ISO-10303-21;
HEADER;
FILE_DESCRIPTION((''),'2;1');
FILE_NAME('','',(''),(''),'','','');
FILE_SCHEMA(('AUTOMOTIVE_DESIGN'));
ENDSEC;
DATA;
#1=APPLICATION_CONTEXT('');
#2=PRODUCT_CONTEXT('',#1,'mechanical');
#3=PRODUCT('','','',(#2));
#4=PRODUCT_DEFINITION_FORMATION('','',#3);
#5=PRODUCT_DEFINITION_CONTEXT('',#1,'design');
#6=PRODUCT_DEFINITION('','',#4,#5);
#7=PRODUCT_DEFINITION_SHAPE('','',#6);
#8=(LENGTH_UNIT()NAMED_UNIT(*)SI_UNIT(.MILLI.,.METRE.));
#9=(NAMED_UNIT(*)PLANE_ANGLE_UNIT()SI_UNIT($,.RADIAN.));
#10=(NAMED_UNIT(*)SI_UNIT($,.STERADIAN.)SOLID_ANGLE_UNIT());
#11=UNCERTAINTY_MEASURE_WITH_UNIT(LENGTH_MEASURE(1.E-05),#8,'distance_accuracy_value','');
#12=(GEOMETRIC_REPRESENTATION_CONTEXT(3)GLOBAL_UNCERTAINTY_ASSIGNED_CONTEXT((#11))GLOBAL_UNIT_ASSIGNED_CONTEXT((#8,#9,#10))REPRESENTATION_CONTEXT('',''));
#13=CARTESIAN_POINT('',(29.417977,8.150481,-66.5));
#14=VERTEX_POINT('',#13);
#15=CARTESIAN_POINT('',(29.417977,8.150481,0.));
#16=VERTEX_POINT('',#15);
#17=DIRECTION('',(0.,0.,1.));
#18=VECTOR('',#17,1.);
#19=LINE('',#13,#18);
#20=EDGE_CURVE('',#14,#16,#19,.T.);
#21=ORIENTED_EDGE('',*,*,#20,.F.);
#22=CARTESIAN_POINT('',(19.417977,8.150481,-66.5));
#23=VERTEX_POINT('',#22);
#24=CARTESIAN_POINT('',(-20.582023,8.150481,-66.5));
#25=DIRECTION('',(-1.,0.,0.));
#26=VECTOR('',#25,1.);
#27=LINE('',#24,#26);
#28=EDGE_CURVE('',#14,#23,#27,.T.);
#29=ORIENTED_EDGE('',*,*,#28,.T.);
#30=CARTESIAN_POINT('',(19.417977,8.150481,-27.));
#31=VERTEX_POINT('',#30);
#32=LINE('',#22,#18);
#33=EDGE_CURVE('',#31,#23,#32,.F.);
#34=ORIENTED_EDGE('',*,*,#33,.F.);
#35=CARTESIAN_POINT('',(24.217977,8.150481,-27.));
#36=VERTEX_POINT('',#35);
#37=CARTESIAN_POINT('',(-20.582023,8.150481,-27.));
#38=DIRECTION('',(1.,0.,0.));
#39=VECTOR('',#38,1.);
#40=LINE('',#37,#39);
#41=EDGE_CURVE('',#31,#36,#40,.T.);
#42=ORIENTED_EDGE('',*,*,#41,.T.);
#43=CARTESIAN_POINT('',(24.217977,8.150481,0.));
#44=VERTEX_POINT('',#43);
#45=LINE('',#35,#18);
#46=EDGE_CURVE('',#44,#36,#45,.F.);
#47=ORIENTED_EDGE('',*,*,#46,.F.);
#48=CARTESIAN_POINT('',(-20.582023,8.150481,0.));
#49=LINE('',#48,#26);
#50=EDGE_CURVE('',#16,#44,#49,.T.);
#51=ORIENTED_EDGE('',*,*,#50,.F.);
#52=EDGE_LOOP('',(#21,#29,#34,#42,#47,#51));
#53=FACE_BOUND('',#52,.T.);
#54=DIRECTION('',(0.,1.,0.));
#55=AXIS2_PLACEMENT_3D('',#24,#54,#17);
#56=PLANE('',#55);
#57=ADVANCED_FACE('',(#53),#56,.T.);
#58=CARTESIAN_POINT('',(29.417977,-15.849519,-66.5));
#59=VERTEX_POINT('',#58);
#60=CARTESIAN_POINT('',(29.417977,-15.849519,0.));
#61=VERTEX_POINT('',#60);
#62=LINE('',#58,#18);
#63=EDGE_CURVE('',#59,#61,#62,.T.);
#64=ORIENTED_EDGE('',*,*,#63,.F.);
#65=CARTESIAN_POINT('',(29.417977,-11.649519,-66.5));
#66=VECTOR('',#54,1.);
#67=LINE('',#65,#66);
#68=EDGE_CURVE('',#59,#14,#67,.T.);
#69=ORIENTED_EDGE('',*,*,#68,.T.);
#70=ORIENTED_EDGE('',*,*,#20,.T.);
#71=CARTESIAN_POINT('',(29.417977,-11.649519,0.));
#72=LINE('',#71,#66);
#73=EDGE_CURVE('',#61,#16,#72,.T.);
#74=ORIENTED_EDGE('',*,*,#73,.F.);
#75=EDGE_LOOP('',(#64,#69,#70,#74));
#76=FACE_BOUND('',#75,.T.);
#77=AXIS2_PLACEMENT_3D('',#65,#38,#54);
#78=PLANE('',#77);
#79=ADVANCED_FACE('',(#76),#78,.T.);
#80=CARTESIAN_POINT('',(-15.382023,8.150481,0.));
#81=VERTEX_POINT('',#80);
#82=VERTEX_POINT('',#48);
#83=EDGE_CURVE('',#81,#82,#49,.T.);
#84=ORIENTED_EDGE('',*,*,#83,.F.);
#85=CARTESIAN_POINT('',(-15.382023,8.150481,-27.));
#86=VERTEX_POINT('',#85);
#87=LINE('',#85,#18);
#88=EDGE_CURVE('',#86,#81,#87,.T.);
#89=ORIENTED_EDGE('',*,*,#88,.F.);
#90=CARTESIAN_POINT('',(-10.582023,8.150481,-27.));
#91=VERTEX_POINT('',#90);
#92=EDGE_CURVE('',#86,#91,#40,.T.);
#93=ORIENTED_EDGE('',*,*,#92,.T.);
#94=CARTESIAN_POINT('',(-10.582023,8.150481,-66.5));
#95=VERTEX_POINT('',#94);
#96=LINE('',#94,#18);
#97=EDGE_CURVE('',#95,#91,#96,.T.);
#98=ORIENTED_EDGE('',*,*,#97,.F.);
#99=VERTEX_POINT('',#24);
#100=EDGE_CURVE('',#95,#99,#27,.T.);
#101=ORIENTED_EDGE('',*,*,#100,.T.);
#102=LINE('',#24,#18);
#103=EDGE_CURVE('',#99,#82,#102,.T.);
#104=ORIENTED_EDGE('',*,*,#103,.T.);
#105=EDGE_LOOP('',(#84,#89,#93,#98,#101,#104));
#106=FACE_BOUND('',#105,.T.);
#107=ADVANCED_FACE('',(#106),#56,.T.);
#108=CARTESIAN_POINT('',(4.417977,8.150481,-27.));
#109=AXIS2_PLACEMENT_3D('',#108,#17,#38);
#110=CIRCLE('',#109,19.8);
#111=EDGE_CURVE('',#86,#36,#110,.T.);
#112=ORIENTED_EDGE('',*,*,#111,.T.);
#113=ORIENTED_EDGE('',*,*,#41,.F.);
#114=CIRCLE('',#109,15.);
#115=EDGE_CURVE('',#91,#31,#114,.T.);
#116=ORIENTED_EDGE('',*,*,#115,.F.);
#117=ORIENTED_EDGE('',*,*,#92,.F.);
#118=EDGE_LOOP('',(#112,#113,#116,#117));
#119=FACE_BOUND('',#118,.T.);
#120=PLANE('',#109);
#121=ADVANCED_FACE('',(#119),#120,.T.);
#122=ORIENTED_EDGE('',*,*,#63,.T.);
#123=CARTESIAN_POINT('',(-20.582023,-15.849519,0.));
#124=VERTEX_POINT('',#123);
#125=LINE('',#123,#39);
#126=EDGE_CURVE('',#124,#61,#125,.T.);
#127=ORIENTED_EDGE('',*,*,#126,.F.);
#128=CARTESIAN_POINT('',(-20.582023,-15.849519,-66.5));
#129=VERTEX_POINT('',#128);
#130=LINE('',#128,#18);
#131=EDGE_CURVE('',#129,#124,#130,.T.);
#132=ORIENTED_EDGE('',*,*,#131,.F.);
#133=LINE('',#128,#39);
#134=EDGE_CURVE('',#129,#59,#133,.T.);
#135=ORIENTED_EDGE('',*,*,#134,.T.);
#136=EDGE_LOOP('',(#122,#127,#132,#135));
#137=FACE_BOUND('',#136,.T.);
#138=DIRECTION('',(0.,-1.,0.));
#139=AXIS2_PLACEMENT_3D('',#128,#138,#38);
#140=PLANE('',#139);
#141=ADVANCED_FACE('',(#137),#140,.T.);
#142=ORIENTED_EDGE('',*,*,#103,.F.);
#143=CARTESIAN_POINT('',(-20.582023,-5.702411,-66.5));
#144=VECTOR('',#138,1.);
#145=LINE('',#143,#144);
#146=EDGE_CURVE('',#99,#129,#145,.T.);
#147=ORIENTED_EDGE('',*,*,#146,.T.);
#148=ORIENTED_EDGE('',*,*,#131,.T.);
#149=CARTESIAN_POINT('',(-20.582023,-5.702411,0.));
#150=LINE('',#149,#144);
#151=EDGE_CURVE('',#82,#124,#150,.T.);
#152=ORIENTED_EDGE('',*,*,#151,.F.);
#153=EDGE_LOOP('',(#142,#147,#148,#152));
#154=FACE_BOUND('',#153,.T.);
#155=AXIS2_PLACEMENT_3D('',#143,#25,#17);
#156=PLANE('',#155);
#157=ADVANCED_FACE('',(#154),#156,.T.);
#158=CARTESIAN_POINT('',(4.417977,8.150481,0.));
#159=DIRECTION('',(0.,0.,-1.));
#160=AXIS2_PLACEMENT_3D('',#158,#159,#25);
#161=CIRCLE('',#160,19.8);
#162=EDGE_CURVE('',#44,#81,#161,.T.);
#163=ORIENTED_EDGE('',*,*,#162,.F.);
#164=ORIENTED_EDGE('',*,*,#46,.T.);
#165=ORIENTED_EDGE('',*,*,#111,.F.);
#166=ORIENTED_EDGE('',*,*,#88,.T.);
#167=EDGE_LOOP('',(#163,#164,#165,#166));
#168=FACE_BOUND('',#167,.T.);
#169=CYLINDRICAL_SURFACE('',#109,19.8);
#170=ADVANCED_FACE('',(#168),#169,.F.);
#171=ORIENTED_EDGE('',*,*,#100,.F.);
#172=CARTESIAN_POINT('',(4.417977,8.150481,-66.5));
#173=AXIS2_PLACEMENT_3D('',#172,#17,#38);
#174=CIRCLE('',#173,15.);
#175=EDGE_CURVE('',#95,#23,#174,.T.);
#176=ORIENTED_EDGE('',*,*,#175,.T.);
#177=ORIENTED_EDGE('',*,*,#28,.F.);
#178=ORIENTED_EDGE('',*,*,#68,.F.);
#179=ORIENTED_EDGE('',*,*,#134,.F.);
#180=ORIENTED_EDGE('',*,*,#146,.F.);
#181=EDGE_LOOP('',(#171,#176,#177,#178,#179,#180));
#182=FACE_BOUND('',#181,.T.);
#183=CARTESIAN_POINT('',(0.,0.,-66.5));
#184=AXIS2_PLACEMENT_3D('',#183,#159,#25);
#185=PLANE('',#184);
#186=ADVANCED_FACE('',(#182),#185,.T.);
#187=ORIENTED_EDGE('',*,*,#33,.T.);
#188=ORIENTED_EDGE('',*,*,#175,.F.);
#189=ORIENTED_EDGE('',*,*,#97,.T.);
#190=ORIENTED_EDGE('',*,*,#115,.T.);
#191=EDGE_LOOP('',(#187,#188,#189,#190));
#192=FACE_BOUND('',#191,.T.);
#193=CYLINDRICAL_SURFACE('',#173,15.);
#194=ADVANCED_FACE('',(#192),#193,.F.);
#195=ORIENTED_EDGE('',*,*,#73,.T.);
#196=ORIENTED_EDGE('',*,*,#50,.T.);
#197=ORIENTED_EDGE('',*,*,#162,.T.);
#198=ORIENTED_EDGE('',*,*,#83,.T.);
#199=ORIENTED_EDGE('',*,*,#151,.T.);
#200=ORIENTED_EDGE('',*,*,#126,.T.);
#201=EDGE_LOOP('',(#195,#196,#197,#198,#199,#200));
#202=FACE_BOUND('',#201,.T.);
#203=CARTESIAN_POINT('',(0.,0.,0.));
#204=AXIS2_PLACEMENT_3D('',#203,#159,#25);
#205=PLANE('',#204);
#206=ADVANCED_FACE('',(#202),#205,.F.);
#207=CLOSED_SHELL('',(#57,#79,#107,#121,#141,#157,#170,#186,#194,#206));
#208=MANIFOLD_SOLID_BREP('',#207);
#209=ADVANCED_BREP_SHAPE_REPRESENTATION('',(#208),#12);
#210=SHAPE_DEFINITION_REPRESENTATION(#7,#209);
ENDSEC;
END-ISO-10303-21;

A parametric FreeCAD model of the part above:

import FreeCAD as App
import Part
import Sketcher

doc = App.newDocument("Part")
params = doc.addObject("Spreadsheet::Sheet", "Params")
for row, (alias, value) in enumerate([
    ("sketch1_width", "50 mm"),
    ("sketch1_height", "24 mm"),
    ("pad1_length", "66.5 mm"),
    ("sketch2_diameter", "39.6 mm"),
    ("pocket1_length", "27 mm"),
    ("sketch3_diameter", "30 mm"),
], start=1):
    params.set(f"A{row}", alias)
    params.set(f"B{row}", "=" + value)
    params.setAlias(f"B{row}", alias)

body = doc.addObject("PartDesign::Body", "Body")

# Sketch on XY plane
sketch1 = doc.addObject("Sketcher::SketchObject", "Sketch")
body.addObject(sketch1)
sketch1.AttachmentSupport = (doc.XY_Plane, [""])
sketch1.MapMode = "FlatFace"
sketch1.addGeometry(Part.LineSegment(App.Vector(-20.582023, 8.150481, 0), App.Vector(-20.582023, -15.849519, 0)), False)
sketch1.addGeometry(Part.LineSegment(App.Vector(-20.582023, -15.849519, 0), App.Vector(29.417977, -15.849519, 0)), False)
sketch1.addGeometry(Part.LineSegment(App.Vector(29.417977, -15.849519, 0), App.Vector(29.417977, 8.150481, 0)), False)
sketch1.addGeometry(Part.LineSegment(App.Vector(29.417977, 8.150481, 0), App.Vector(-20.582023, 8.150481, 0)), False)
sketch1.addConstraint(Sketcher.Constraint("Coincident", 0, 2, 1, 1))
sketch1.addConstraint(Sketcher.Constraint("Coincident", 1, 2, 2, 1))
sketch1.addConstraint(Sketcher.Constraint("Coincident", 2, 2, 3, 1))
sketch1.addConstraint(Sketcher.Constraint("Coincident", 3, 2, 0, 1))
sketch1.addConstraint(Sketcher.Constraint("Vertical", 0))
sketch1.addConstraint(Sketcher.Constraint("Horizontal", 1))
sketch1.addConstraint(Sketcher.Constraint("Vertical", 2))
sketch1.addConstraint(Sketcher.Constraint("Horizontal", 3))
sketch1.addConstraint(Sketcher.Constraint("DistanceX", 1, 1, 1, 2, 50.0))
sketch1.addConstraint(Sketcher.Constraint("DistanceY", 0, 2, 0, 1, 24.0))
sketch1.addConstraint(Sketcher.Constraint("DistanceY", 0, 2, -1, 1, 15.849519))
sketch1.addConstraint(Sketcher.Constraint("DistanceX", 0, 2, -1, 1, 20.582023))
sketch1.setExpression("Constraints[8]", "Params.sketch1_width")
sketch1.setExpression("Constraints[9]", "Params.sketch1_height")
pad1 = doc.addObject("PartDesign::Pad", "Pad")
body.addObject(pad1)
pad1.Profile = sketch1
pad1.setExpression("Length", "Params.pad1_length")
pad1.Reversed = True

# Sketch on XY plane
sketch2 = doc.addObject("Sketcher::SketchObject", "Sketch001")
body.addObject(sketch2)
sketch2.AttachmentSupport = (doc.XY_Plane, [""])
sketch2.MapMode = "FlatFace"
sketch2.addGeometry(Part.Circle(App.Vector(4.417977, 8.150481, 0), App.Vector(0, 0, 1), 19.8), False)
sketch2.addConstraint(Sketcher.Constraint("Diameter", 0, 39.6))
sketch2.addConstraint(Sketcher.Constraint("DistanceY", -1, 1, 0, 3, 8.150481))
sketch2.addConstraint(Sketcher.Constraint("DistanceX", -1, 1, 0, 3, 4.417977))
sketch2.setExpression("Constraints[0]", "Params.sketch2_diameter")
pocket1 = doc.addObject("PartDesign::Pocket", "Pocket")
body.addObject(pocket1)
pocket1.Profile = sketch2
pocket1.setExpression("Length", "Params.pocket1_length")

# Sketch on XY plane
sketch3 = doc.addObject("Sketcher::SketchObject", "Sketch002")
body.addObject(sketch3)
sketch3.AttachmentSupport = (doc.XY_Plane, [""])
sketch3.MapMode = "FlatFace"
sketch3.AttachmentOffset = App.Placement(App.Vector(0, 0, -27), App.Rotation())
sketch3.addGeometry(Part.Circle(App.Vector(4.417977, 8.150481, 0), App.Vector(0, 0, 1), 15), False)
sketch3.addConstraint(Sketcher.Constraint("Diameter", 0, 30.0))
sketch3.addConstraint(Sketcher.Constraint("DistanceY", -1, 1, 0, 3, 8.150481))
sketch3.addConstraint(Sketcher.Constraint("DistanceX", -1, 1, 0, 3, 4.417977))
sketch3.setExpression("Constraints[0]", "Params.sketch3_diameter")
pocket2 = doc.addObject("PartDesign::Pocket", "Pocket001")
body.addObject(pocket2)
pocket2.Profile = sketch3
pocket2.Type = "ThroughAll"

doc.recompute()
